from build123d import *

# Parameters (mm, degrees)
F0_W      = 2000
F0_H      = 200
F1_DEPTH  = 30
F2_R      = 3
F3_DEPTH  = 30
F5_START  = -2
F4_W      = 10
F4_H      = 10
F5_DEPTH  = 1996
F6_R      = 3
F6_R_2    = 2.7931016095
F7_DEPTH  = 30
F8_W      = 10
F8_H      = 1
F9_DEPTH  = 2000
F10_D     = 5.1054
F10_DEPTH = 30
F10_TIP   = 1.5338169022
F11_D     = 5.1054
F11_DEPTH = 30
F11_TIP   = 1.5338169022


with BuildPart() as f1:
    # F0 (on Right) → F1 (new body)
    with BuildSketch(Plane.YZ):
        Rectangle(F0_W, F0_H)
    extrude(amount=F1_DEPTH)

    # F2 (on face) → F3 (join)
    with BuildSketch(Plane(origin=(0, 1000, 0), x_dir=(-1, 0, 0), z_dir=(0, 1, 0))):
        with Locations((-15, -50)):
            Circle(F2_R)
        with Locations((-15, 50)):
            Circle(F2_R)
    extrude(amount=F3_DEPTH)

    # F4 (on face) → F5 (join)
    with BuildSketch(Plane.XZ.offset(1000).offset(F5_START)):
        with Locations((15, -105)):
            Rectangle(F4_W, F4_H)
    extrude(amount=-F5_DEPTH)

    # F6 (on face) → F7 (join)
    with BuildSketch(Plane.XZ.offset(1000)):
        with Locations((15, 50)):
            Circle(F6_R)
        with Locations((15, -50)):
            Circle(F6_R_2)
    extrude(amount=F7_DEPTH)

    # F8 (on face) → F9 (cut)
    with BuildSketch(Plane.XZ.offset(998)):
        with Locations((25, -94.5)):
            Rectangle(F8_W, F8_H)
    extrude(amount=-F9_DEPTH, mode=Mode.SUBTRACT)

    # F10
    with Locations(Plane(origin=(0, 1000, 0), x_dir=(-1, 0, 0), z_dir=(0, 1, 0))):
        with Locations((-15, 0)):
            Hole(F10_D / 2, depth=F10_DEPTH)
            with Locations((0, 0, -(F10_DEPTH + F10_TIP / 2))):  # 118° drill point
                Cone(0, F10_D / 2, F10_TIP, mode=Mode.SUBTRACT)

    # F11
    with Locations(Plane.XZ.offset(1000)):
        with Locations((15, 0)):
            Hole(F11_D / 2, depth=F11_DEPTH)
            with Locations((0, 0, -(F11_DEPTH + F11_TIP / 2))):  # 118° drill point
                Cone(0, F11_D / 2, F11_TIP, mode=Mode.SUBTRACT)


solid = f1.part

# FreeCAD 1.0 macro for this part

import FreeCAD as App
import Part
import Sketcher

V = App.Vector
Q = App.Units.Quantity


def add_polygon(sketch, points):
    """Adds a closed chain of lines whose ends are joined by coincident constraints."""
    first, n = sketch.GeometryCount, len(points)
    for a, b in zip(points, points[1:] + points[:1]):
        sketch.addGeometry(Part.LineSegment(App.Vector(*a, 0), App.Vector(*b, 0)), False)
    for i in range(n):
        sketch.addConstraint(Sketcher.Constraint("Coincident", first + i, 2, first + (i + 1) % n, 1))

doc = App.newDocument("Part")
params = doc.addObject("Spreadsheet::Sheet", "Params")
for row, (alias, value) in enumerate([
    ("sketch1_width", "2000 mm"),
    ("sketch1_height", "200 mm"),
    ("pad1_length", "30 mm"),
    ("sketch2_diameter", "6 mm"),
    ("pad2_length", "30 mm"),
    ("sketch3_width", "10 mm"),
    ("pad3_length", "1996 mm"),
    ("sketch4_diameter", "6 mm"),
    ("pad4_length", "30 mm"),
    ("sketch5_width", "10 mm"),
    ("sketch5_height", "1 mm"),
    ("pocket1_length", "2000 mm"),
    ("hole_diameter", "5.1054 mm"),
    ("hole_depth", "30 mm"),
    ("hole2_diameter", "5.1054 mm"),
    ("hole2_depth", "30 mm"),
], start=1):
    params.set(f"A{row}", alias)
    params.set(f"B{row}", "=" + value)
    params.setAlias(f"B{row}", alias)

body = doc.addObject("PartDesign::Body", "Body")

# Sketch on YZ plane
sketch1 = doc.addObject("Sketcher::SketchObject", "Sketch")
body.addObject(sketch1)
sketch1.AttachmentSupport = (doc.YZ_Plane, [""])
sketch1.MapMode = "FlatFace"
add_polygon(sketch1, [(-1000, 100), (-1000, -100), (1000, -100), (1000, 100)])  # lines 0-3
sketch1.addConstraint(Sketcher.Constraint("Vertical", 0))
sketch1.addConstraint(Sketcher.Constraint("Horizontal", 1))
sketch1.addConstraint(Sketcher.Constraint("Vertical", 2))
sketch1.addConstraint(Sketcher.Constraint("Horizontal", 3))
sketch1.addConstraint(Sketcher.Constraint("Symmetric", 0, 2, 2, 2, -1, 1))
sketch1.addConstraint(Sketcher.Constraint("DistanceX", 1, 1, 1, 2, Q("2000 mm")))
sketch1.addConstraint(Sketcher.Constraint("DistanceY", 0, 2, 0, 1, Q("200 mm")))
sketch1.setExpression("Constraints[9]", "Params.sketch1_width")
sketch1.setExpression("Constraints[10]", "Params.sketch1_height")
pad1 = doc.addObject("PartDesign::Pad", "Pad")
body.addObject(pad1)
pad1.Profile = sketch1
pad1.setExpression("Length", "Params.pad1_length")

# Sketch on XZ plane
sketch2 = doc.addObject("Sketcher::SketchObject", "Sketch001")
body.addObject(sketch2)
sketch2.AttachmentSupport = (doc.XZ_Plane, [""])
sketch2.MapMode = "FlatFace"
sketch2.AttachmentOffset = App.Placement(V(0, 0, -1000), App.Rotation())
sketch2.addGeometry(Part.Circle(V(15, -50, 0), V(0, 0, 1), 3), False)
sketch2.addGeometry(Part.Circle(V(15, 50, 0), V(0, 0, 1), 3), False)
sketch2.addConstraint(Sketcher.Constraint("Equal", 0, 1))
sketch2.addConstraint(Sketcher.Constraint("Symmetric", 0, 3, 1, 3, -1))
sketch2.addConstraint(Sketcher.Constraint("Diameter", 0, Q("6 mm")))
sketch2.addConstraint(Sketcher.Constraint("DistanceX", -1, 1, 0, 3, Q("15 mm")))
sketch2.addConstraint(Sketcher.Constraint("DistanceY", 0, 3, -1, 1, Q("50 mm")))
sketch2.setExpression("Constraints[2]", "Params.sketch2_diameter")
pad2 = doc.addObject("PartDesign::Pad", "Pad001")
body.addObject(pad2)
pad2.Profile = sketch2
pad2.setExpression("Length", "Params.pad2_length")
pad2.Reversed = True

# Sketch on XZ plane
sketch3 = doc.addObject("Sketcher::SketchObject", "Sketch002")
body.addObject(sketch3)
sketch3.AttachmentSupport = (doc.XZ_Plane, [""])
sketch3.MapMode = "FlatFace"
sketch3.AttachmentOffset = App.Placement(V(0, 0, 998), App.Rotation())
add_polygon(sketch3, [(10, -100), (10, -110), (20, -110), (20, -100)])  # lines 0-3
sketch3.addConstraint(Sketcher.Constraint("Vertical", 0))
sketch3.addConstraint(Sketcher.Constraint("Horizontal", 1))
sketch3.addConstraint(Sketcher.Constraint("Vertical", 2))
sketch3.addConstraint(Sketcher.Constraint("Horizontal", 3))
sketch3.addConstraint(Sketcher.Constraint("Equal", 3, 0))
sketch3.addConstraint(Sketcher.Constraint("DistanceX", 1, 1, 1, 2, Q("10 mm")))
sketch3.addConstraint(Sketcher.Constraint("DistanceX", -1, 1, 0, 2, Q("10 mm")))
sketch3.addConstraint(Sketcher.Constraint("DistanceY", 0, 2, -1, 1, Q("110 mm")))
sketch3.setExpression("Constraints[9]", "Params.sketch3_width")
pad3 = doc.addObject("PartDesign::Pad", "Pad002")
body.addObject(pad3)
pad3.Profile = sketch3
pad3.setExpression("Length", "Params.pad3_length")
pad3.Reversed = True

# Sketch on XZ plane
sketch4 = doc.addObject("Sketcher::SketchObject", "Sketch003")
body.addObject(sketch4)
sketch4.AttachmentSupport = (doc.XZ_Plane, [""])
sketch4.MapMode = "FlatFace"
sketch4.AttachmentOffset = App.Placement(V(0, 0, 1000), App.Rotation())
sketch4.addGeometry(Part.Circle(V(15, 50, 0), V(0, 0, 1), 3), False)
sketch4.addGeometry(Part.Circle(V(15, -50, 0), V(0, 0, 1), 2.8), False)
sketch4.addConstraint(Sketcher.Constraint("Symmetric", 0, 3, 1, 3, -1))
sketch4.addConstraint(Sketcher.Constraint("Diameter", 0, Q("6 mm")))
sketch4.addConstraint(Sketcher.Constraint("DistanceX", -1, 1, 0, 3, Q("15 mm")))
sketch4.addConstraint(Sketcher.Constraint("DistanceY", -1, 1, 0, 3, Q("50 mm")))
sketch4.addConstraint(Sketcher.Constraint("Diameter", 1, Q("5.586203 mm")))
sketch4.setExpression("Constraints[1]", "Params.sketch4_diameter")
pad4 = doc.addObject("PartDesign::Pad", "Pad003")
body.addObject(pad4)
pad4.Profile = sketch4
pad4.setExpression("Length", "Params.pad4_length")

# Sketch on XZ plane
sketch5 = doc.addObject("Sketcher::SketchObject", "Sketch004")
body.addObject(sketch5)
sketch5.AttachmentSupport = (doc.XZ_Plane, [""])
sketch5.MapMode = "FlatFace"
sketch5.AttachmentOffset = App.Placement(V(0, 0, 998), App.Rotation())
add_polygon(sketch5, [(20, -94), (20, -95), (30, -95), (30, -94)])  # lines 0-3
sketch5.addConstraint(Sketcher.Constraint("Vertical", 0))
sketch5.addConstraint(Sketcher.Constraint("Horizontal", 1))
sketch5.addConstraint(Sketcher.Constraint("Vertical", 2))
sketch5.addConstraint(Sketcher.Constraint("Horizontal", 3))
sketch5.addConstraint(Sketcher.Constraint("DistanceX", 1, 1, 1, 2, Q("10 mm")))
sketch5.addConstraint(Sketcher.Constraint("DistanceY", 0, 2, 0, 1, Q("1 mm")))
sketch5.addConstraint(Sketcher.Constraint("DistanceX", -1, 1, 0, 2, Q("20 mm")))
sketch5.addConstraint(Sketcher.Constraint("DistanceY", 0, 2, -1, 1, Q("95 mm")))
sketch5.setExpression("Constraints[8]", "Params.sketch5_width")
sketch5.setExpression("Constraints[9]", "Params.sketch5_height")
pocket1 = doc.addObject("PartDesign::Pocket", "Pocket")
body.addObject(pocket1)
pocket1.Profile = sketch5
pocket1.setExpression("Length", "Params.pocket1_length")

# Sketch on XZ plane
sketch6 = doc.addObject("Sketcher::SketchObject", "Sketch005")
body.addObject(sketch6)
sketch6.AttachmentSupport = (doc.XZ_Plane, [""])
sketch6.MapMode = "FlatFace"
sketch6.AttachmentOffset = App.Placement(V(0, 0, -1000), App.Rotation())
sketch6.addGeometry(Part.Circle(V(15, 0, 0), V(0, 0, 1), 2.6), False)
sketch6.addConstraint(Sketcher.Constraint("PointOnObject", 0, 3, -1))
sketch6.addConstraint(Sketcher.Constraint("DistanceX", -1, 1, 0, 3, Q("15 mm")))
sketch6.addConstraint(Sketcher.Constraint("Diameter", 0, Q("5.1054 mm")))
doc.recompute()
hole = doc.addObject("PartDesign::Hole", "Hole")
body.addObject(hole)
hole.Profile = sketch6
hole.ThreadType = "None"
hole.setExpression("Diameter", "Params.hole_diameter")
hole.DepthType = "Dimension"
hole.setExpression("Depth", "Params.hole_depth")
hole.DrillPoint = "Angled"
hole.DrillPointAngle = 118
hole.Reversed = True

# Sketch on XZ plane
sketch7 = doc.addObject("Sketcher::SketchObject", "Sketch006")
body.addObject(sketch7)
sketch7.AttachmentSupport = (doc.XZ_Plane, [""])
sketch7.MapMode = "FlatFace"
sketch7.AttachmentOffset = App.Placement(V(0, 0, 1000), App.Rotation())
sketch7.addGeometry(Part.Circle(V(15, 0, 0), V(0, 0, 1), 2.6), False)
sketch7.addConstraint(Sketcher.Constraint("PointOnObject", 0, 3, -1))
sketch7.addConstraint(Sketcher.Constraint("DistanceX", -1, 1, 0, 3, Q("15 mm")))
sketch7.addConstraint(Sketcher.Constraint("Diameter", 0, Q("5.1054 mm")))
doc.recompute()
hole2 = doc.addObject("PartDesign::Hole", "Hole001")
body.addObject(hole2)
hole2.Profile = sketch7
hole2.ThreadType = "None"
hole2.setExpression("Diameter", "Params.hole2_diameter")
hole2.DepthType = "Dimension"
hole2.setExpression("Depth", "Params.hole2_depth")
hole2.DrillPoint = "Angled"
hole2.DrillPointAngle = 118

doc.recompute()
